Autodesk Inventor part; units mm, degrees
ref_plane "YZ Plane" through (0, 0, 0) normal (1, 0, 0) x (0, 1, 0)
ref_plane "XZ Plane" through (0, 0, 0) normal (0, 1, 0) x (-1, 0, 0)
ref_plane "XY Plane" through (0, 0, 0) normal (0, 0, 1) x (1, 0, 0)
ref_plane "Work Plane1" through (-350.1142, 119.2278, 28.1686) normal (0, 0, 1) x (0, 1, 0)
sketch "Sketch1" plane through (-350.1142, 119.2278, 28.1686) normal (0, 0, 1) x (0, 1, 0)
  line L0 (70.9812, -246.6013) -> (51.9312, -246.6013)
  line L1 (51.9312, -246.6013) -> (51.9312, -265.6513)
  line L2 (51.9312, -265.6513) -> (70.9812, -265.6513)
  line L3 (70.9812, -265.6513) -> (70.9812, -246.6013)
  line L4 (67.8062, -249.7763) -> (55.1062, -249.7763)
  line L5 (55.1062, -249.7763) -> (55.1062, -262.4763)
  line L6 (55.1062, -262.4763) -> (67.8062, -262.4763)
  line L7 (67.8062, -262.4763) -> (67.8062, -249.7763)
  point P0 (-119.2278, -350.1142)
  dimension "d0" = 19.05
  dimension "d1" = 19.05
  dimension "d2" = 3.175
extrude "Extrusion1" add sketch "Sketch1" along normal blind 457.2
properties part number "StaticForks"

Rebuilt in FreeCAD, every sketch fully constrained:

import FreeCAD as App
import Part
import Sketcher
Q = App.Units.Quantity

doc = App.newDocument("Part")
body = doc.addObject("PartDesign::Body", "Body")

# Sketch on XY plane
sketch1 = body.newObject("Sketcher::SketchObject", "Sketch")
sketch1.AttachmentSupport = (doc.getObject("XY_Plane"), [""])
sketch1.MapMode = "FlatFace"
sketch1.AttachmentOffset = App.Placement(App.Vector(0, 0, 1.109 * 25.4), App.Rotation())
sketch1.addGeometry([
    Part.LineSegment(App.Vector(-84.4629, 190.209, 0), App.Vector(-103.5129, 190.209, 0)),  # 0
    Part.LineSegment(App.Vector(-103.5129, 190.209, 0), App.Vector(-103.5129, 171.159, 0)),  # 1
    Part.LineSegment(App.Vector(-103.5129, 171.159, 0), App.Vector(-84.4629, 171.159, 0)),  # 2
    Part.LineSegment(App.Vector(-84.4629, 171.159, 0), App.Vector(-84.4629, 190.209, 0)),  # 3
    Part.LineSegment(App.Vector(-100.3379, 174.334, 0), App.Vector(-100.3379, 187.034, 0)),  # 4
    Part.LineSegment(App.Vector(-100.3379, 187.034, 0), App.Vector(-87.6379, 187.034, 0)),  # 5
    Part.LineSegment(App.Vector(-87.6379, 187.034, 0), App.Vector(-87.6379, 174.334, 0)),  # 6
    Part.LineSegment(App.Vector(-87.6379, 174.334, 0), App.Vector(-100.3379, 174.334, 0)),  # 7
], False)
sketch1.addConstraint([
    Sketcher.Constraint("Coincident", 0, 2, 1, 1),
    Sketcher.Constraint("Coincident", 1, 2, 2, 1),
    Sketcher.Constraint("Coincident", 2, 2, 3, 1),
    Sketcher.Constraint("Coincident", 3, 2, 0, 1),
    Sketcher.Constraint("Coincident", 4, 2, 5, 1),
    Sketcher.Constraint("Coincident", 5, 2, 6, 1),
    Sketcher.Constraint("Coincident", 6, 2, 7, 1),
    Sketcher.Constraint("Coincident", 7, 2, 4, 1),
    Sketcher.Constraint("Horizontal", 0),
    Sketcher.Constraint("Vertical", 1),
    Sketcher.Constraint("Horizontal", 2),
    Sketcher.Constraint("Vertical", 3),
    Sketcher.Constraint("Vertical", 4),
    Sketcher.Constraint("Horizontal", 5),
    Sketcher.Constraint("Vertical", 6),
    Sketcher.Constraint("Horizontal", 7),
    Sketcher.Constraint("Equal", 2, 1),
    Sketcher.Constraint("Equal", 7, 4),
    Sketcher.Constraint("DistanceX", 0, 2, 0, 1, Q("0.75 in")),
    Sketcher.Constraint("DistanceX", 5, 1, 5, 2, Q("0.5 in")),
    Sketcher.Constraint("DistanceX", 0, 2, 4, 2, Q("0.125 in")),
    Sketcher.Constraint("DistanceY", 4, 2, 0, 2, Q("0.125 in")),
    Sketcher.Constraint("DistanceX", 0, 2, -1, 1, Q("4.0753 in")),
    Sketcher.Constraint("DistanceY", -1, 1, 0, 2, Q("190.209 mm")),
])
pad1 = body.newObject("PartDesign::Pad", "Pad")
pad1.Profile = sketch1
pad1.Length = Q("18 in")

doc.recompute()
